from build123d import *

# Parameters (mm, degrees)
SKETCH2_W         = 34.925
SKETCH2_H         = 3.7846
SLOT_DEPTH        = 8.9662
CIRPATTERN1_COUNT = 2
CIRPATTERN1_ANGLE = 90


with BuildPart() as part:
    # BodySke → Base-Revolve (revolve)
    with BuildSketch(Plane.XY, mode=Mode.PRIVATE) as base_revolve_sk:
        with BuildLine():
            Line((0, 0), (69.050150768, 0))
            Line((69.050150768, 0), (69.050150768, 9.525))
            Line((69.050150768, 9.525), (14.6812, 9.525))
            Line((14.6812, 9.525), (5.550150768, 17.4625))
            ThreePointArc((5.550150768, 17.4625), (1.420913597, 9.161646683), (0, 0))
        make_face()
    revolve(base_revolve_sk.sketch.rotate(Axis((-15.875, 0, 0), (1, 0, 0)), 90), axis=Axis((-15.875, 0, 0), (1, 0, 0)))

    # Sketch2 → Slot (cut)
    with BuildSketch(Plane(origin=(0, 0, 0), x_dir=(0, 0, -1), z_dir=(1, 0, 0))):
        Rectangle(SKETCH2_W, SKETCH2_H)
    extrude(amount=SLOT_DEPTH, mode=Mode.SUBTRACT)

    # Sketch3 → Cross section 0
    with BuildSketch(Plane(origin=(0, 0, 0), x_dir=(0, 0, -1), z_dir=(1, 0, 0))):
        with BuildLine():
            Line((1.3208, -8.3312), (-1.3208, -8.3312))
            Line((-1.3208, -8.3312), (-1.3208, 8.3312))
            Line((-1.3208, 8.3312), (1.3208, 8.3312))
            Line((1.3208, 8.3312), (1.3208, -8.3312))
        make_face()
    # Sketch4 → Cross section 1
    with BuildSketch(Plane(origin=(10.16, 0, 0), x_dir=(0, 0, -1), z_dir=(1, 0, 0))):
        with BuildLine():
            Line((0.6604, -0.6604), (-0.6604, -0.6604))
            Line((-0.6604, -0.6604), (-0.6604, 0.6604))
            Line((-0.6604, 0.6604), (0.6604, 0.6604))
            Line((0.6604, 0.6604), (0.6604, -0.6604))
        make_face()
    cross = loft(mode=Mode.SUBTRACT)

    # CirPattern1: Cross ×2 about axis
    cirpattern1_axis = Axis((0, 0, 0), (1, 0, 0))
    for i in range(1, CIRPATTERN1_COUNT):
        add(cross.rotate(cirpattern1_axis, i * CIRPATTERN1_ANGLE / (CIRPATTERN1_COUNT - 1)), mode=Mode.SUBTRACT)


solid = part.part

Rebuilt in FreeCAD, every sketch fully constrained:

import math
import FreeCAD as App
import Part
import Sketcher
from FreeCAD import Vector
Q = App.Units.Quantity

doc = App.newDocument("Part")
body = doc.addObject("PartDesign::Body", "Body")

sketch1 = body.newObject("Sketcher::SketchObject", "Sketch")
sketch1.AttachmentSupport = (doc.getObject("XY_Plane"), [""])
sketch1.MapMode = "FlatFace"
sketch1.addGeometry(Part.LineSegment(Vector(0, 0, 0), Vector(69, 0, 0)), False)
sketch1.addGeometry(Part.LineSegment(Vector(69, 0, 0), Vector(69, 10, 0)), False)
sketch1.addGeometry(Part.LineSegment(Vector(69, 10, 0), Vector(15, 10, 0)), False)
sketch1.addGeometry(Part.LineSegment(Vector(15, 10, 0), Vector(6, 17, 0)), False)
sketch1.addGeometry(Part.ArcOfCircle(Part.Circle(Vector(30, 0, 0), Vector(0, 0, 1), 30), math.radians(145), math.radians(180)), False)
sketch1.addConstraint(Sketcher.Constraint("Coincident", 0, 2, 1, 1))
sketch1.addConstraint(Sketcher.Constraint("Coincident", 1, 2, 2, 1))
sketch1.addConstraint(Sketcher.Constraint("Coincident", 2, 2, 3, 1))
sketch1.addConstraint(Sketcher.Constraint("Coincident", 3, 2, 4, 1))
sketch1.addConstraint(Sketcher.Constraint("Coincident", 4, 2, 0, 1))
sketch1.addConstraint(Sketcher.Constraint("Horizontal", 0))
sketch1.addConstraint(Sketcher.Constraint("Vertical", 1))
sketch1.addConstraint(Sketcher.Constraint("Horizontal", 2))
sketch1.addConstraint(Sketcher.Constraint("Coincident", 4, 2, -1, 1))
sketch1.addConstraint(Sketcher.Constraint("PointOnObject", 4, 3, -1))
sketch1.addConstraint(Sketcher.Constraint("Angle", 3, Q("139 deg")))
sketch1.addConstraint(Sketcher.Constraint("DistanceX", 3, 2, 1, 2, Q("2.5 in")))
sketch1.addConstraint(Sketcher.Constraint("DistanceY", 1, 1, 1, 2, Q("0.375 in")))
sketch1.addConstraint(Sketcher.Constraint("DistanceX", -1, 1, 2, 2, Q("0.578 in")))
sketch1.addConstraint(Sketcher.Constraint("DistanceY", -1, 1, 3, 2, Q("0.6875 in")))
revolution = body.newObject("PartDesign::Revolution", "Revolution")
revolution.Profile = sketch1
revolution.ReferenceAxis = (sketch1, ["H_Axis"])
revolution.Angle = 360

sketch2 = body.newObject("Sketcher::SketchObject", "Sketch001")
sketch2.AttachmentSupport = (doc.getObject("YZ_Plane"), [""])
sketch2.MapMode = "FlatFace"
sketch2.addGeometry(Part.LineSegment(Vector(1.9, 17.5, 0), Vector(-1.9, 17.5, 0)), False)
sketch2.addGeometry(Part.LineSegment(Vector(-1.9, 17.5, 0), Vector(-1.9, -17.5, 0)), False)
sketch2.addGeometry(Part.LineSegment(Vector(-1.9, -17.5, 0), Vector(1.9, -17.5, 0)), False)
sketch2.addGeometry(Part.LineSegment(Vector(1.9, -17.5, 0), Vector(1.9, 17.5, 0)), False)
sketch2.addConstraint(Sketcher.Constraint("Coincident", 0, 2, 1, 1))
sketch2.addConstraint(Sketcher.Constraint("Coincident", 1, 2, 2, 1))
sketch2.addConstraint(Sketcher.Constraint("Coincident", 2, 2, 3, 1))
sketch2.addConstraint(Sketcher.Constraint("Coincident", 3, 2, 0, 1))
sketch2.addConstraint(Sketcher.Constraint("Horizontal", 0))
sketch2.addConstraint(Sketcher.Constraint("Vertical", 1))
sketch2.addConstraint(Sketcher.Constraint("Horizontal", 2))
sketch2.addConstraint(Sketcher.Constraint("Vertical", 3))
sketch2.addConstraint(Sketcher.Constraint("Symmetric", 0, 2, 2, 2, -1, 1))
sketch2.addConstraint(Sketcher.Constraint("DistanceX", 0, 2, 0, 1, Q("0.149 in")))
sketch2.addConstraint(Sketcher.Constraint("DistanceY", 1, 2, 1, 1, Q("1.375 in")))
pocket1 = body.newObject("PartDesign::Pocket", "Pocket")
pocket1.Profile = sketch2
pocket1.Length = Q("0.353 in")
pocket1.Reversed = True

sketch3 = body.newObject("Sketcher::SketchObject", "Sketch002")
sketch3.AttachmentSupport = (doc.getObject("YZ_Plane"), [""])
sketch3.MapMode = "FlatFace"
sketch3.addGeometry(Part.LineSegment(Vector(-8.3, 1.3, 0), Vector(-8.3, -1.3, 0)), False)
sketch3.addGeometry(Part.LineSegment(Vector(-8.3, -1.3, 0), Vector(8.3, -1.3, 0)), False)
sketch3.addGeometry(Part.LineSegment(Vector(8.3, -1.3, 0), Vector(8.3, 1.3, 0)), False)
sketch3.addGeometry(Part.LineSegment(Vector(8.3, 1.3, 0), Vector(-8.3, 1.3, 0)), False)
sketch3.addConstraint(Sketcher.Constraint("Coincident", 0, 2, 1, 1))
sketch3.addConstraint(Sketcher.Constraint("Coincident", 1, 2, 2, 1))
sketch3.addConstraint(Sketcher.Constraint("Coincident", 2, 2, 3, 1))
sketch3.addConstraint(Sketcher.Constraint("Coincident", 3, 2, 0, 1))
sketch3.addConstraint(Sketcher.Constraint("Vertical", 0))
sketch3.addConstraint(Sketcher.Constraint("Horizontal", 1))
sketch3.addConstraint(Sketcher.Constraint("Vertical", 2))
sketch3.addConstraint(Sketcher.Constraint("Horizontal", 3))
sketch3.addConstraint(Sketcher.Constraint("Symmetric", 0, 2, 2, 2, -1, 1))
sketch3.addConstraint(Sketcher.Constraint("DistanceX", 1, 1, 1, 2, Q("0.656 in")))
sketch3.addConstraint(Sketcher.Constraint("DistanceY", 0, 2, 0, 1, Q("0.104 in")))

sketch4 = body.newObject("Sketcher::SketchObject", "Sketch003")
sketch4.AttachmentSupport = (doc.getObject("YZ_Plane"), [""])
sketch4.MapMode = "FlatFace"
sketch4.AttachmentOffset = App.Placement(Vector(0, 0, 0.4 * 25.4), App.Rotation())
sketch4.addGeometry(Part.LineSegment(Vector(-0.7, 0.7, 0), Vector(-0.7, -0.7, 0)), False)
sketch4.addGeometry(Part.LineSegment(Vector(-0.7, -0.7, 0), Vector(0.7, -0.7, 0)), False)
sketch4.addGeometry(Part.LineSegment(Vector(0.7, -0.7, 0), Vector(0.7, 0.7, 0)), False)
sketch4.addGeometry(Part.LineSegment(Vector(0.7, 0.7, 0), Vector(-0.7, 0.7, 0)), False)
sketch4.addConstraint(Sketcher.Constraint("Coincident", 0, 2, 1, 1))
sketch4.addConstraint(Sketcher.Constraint("Coincident", 1, 2, 2, 1))
sketch4.addConstraint(Sketcher.Constraint("Coincident", 2, 2, 3, 1))
sketch4.addConstraint(Sketcher.Constraint("Coincident", 3, 2, 0, 1))
sketch4.addConstraint(Sketcher.Constraint("Vertical", 0))
sketch4.addConstraint(Sketcher.Constraint("Horizontal", 1))
sketch4.addConstraint(Sketcher.Constraint("Vertical", 2))
sketch4.addConstraint(Sketcher.Constraint("Horizontal", 3))
sketch4.addConstraint(Sketcher.Constraint("Symmetric", 0, 2, 2, 2, -1, 1))
sketch4.addConstraint(Sketcher.Constraint("Equal", 3, 0))
sketch4.addConstraint(Sketcher.Constraint("DistanceX", 1, 1, 1, 2, Q("0.052 in")))

subtractiveloft = body.newObject("PartDesign::SubtractiveLoft", "SubtractiveLoft")
subtractiveloft.Profile = sketch3
subtractiveloft.Sections = [sketch4]
doc.recompute()

polarpattern = body.newObject("PartDesign::PolarPattern", "PolarPattern")
polarpattern.Originals = [subtractiveloft]
polarpattern.Axis = (doc.getObject("X_Axis"), [""])
polarpattern.Angle = 90
polarpattern.Occurrences = 2
body.Tip = polarpattern

doc.recompute()
